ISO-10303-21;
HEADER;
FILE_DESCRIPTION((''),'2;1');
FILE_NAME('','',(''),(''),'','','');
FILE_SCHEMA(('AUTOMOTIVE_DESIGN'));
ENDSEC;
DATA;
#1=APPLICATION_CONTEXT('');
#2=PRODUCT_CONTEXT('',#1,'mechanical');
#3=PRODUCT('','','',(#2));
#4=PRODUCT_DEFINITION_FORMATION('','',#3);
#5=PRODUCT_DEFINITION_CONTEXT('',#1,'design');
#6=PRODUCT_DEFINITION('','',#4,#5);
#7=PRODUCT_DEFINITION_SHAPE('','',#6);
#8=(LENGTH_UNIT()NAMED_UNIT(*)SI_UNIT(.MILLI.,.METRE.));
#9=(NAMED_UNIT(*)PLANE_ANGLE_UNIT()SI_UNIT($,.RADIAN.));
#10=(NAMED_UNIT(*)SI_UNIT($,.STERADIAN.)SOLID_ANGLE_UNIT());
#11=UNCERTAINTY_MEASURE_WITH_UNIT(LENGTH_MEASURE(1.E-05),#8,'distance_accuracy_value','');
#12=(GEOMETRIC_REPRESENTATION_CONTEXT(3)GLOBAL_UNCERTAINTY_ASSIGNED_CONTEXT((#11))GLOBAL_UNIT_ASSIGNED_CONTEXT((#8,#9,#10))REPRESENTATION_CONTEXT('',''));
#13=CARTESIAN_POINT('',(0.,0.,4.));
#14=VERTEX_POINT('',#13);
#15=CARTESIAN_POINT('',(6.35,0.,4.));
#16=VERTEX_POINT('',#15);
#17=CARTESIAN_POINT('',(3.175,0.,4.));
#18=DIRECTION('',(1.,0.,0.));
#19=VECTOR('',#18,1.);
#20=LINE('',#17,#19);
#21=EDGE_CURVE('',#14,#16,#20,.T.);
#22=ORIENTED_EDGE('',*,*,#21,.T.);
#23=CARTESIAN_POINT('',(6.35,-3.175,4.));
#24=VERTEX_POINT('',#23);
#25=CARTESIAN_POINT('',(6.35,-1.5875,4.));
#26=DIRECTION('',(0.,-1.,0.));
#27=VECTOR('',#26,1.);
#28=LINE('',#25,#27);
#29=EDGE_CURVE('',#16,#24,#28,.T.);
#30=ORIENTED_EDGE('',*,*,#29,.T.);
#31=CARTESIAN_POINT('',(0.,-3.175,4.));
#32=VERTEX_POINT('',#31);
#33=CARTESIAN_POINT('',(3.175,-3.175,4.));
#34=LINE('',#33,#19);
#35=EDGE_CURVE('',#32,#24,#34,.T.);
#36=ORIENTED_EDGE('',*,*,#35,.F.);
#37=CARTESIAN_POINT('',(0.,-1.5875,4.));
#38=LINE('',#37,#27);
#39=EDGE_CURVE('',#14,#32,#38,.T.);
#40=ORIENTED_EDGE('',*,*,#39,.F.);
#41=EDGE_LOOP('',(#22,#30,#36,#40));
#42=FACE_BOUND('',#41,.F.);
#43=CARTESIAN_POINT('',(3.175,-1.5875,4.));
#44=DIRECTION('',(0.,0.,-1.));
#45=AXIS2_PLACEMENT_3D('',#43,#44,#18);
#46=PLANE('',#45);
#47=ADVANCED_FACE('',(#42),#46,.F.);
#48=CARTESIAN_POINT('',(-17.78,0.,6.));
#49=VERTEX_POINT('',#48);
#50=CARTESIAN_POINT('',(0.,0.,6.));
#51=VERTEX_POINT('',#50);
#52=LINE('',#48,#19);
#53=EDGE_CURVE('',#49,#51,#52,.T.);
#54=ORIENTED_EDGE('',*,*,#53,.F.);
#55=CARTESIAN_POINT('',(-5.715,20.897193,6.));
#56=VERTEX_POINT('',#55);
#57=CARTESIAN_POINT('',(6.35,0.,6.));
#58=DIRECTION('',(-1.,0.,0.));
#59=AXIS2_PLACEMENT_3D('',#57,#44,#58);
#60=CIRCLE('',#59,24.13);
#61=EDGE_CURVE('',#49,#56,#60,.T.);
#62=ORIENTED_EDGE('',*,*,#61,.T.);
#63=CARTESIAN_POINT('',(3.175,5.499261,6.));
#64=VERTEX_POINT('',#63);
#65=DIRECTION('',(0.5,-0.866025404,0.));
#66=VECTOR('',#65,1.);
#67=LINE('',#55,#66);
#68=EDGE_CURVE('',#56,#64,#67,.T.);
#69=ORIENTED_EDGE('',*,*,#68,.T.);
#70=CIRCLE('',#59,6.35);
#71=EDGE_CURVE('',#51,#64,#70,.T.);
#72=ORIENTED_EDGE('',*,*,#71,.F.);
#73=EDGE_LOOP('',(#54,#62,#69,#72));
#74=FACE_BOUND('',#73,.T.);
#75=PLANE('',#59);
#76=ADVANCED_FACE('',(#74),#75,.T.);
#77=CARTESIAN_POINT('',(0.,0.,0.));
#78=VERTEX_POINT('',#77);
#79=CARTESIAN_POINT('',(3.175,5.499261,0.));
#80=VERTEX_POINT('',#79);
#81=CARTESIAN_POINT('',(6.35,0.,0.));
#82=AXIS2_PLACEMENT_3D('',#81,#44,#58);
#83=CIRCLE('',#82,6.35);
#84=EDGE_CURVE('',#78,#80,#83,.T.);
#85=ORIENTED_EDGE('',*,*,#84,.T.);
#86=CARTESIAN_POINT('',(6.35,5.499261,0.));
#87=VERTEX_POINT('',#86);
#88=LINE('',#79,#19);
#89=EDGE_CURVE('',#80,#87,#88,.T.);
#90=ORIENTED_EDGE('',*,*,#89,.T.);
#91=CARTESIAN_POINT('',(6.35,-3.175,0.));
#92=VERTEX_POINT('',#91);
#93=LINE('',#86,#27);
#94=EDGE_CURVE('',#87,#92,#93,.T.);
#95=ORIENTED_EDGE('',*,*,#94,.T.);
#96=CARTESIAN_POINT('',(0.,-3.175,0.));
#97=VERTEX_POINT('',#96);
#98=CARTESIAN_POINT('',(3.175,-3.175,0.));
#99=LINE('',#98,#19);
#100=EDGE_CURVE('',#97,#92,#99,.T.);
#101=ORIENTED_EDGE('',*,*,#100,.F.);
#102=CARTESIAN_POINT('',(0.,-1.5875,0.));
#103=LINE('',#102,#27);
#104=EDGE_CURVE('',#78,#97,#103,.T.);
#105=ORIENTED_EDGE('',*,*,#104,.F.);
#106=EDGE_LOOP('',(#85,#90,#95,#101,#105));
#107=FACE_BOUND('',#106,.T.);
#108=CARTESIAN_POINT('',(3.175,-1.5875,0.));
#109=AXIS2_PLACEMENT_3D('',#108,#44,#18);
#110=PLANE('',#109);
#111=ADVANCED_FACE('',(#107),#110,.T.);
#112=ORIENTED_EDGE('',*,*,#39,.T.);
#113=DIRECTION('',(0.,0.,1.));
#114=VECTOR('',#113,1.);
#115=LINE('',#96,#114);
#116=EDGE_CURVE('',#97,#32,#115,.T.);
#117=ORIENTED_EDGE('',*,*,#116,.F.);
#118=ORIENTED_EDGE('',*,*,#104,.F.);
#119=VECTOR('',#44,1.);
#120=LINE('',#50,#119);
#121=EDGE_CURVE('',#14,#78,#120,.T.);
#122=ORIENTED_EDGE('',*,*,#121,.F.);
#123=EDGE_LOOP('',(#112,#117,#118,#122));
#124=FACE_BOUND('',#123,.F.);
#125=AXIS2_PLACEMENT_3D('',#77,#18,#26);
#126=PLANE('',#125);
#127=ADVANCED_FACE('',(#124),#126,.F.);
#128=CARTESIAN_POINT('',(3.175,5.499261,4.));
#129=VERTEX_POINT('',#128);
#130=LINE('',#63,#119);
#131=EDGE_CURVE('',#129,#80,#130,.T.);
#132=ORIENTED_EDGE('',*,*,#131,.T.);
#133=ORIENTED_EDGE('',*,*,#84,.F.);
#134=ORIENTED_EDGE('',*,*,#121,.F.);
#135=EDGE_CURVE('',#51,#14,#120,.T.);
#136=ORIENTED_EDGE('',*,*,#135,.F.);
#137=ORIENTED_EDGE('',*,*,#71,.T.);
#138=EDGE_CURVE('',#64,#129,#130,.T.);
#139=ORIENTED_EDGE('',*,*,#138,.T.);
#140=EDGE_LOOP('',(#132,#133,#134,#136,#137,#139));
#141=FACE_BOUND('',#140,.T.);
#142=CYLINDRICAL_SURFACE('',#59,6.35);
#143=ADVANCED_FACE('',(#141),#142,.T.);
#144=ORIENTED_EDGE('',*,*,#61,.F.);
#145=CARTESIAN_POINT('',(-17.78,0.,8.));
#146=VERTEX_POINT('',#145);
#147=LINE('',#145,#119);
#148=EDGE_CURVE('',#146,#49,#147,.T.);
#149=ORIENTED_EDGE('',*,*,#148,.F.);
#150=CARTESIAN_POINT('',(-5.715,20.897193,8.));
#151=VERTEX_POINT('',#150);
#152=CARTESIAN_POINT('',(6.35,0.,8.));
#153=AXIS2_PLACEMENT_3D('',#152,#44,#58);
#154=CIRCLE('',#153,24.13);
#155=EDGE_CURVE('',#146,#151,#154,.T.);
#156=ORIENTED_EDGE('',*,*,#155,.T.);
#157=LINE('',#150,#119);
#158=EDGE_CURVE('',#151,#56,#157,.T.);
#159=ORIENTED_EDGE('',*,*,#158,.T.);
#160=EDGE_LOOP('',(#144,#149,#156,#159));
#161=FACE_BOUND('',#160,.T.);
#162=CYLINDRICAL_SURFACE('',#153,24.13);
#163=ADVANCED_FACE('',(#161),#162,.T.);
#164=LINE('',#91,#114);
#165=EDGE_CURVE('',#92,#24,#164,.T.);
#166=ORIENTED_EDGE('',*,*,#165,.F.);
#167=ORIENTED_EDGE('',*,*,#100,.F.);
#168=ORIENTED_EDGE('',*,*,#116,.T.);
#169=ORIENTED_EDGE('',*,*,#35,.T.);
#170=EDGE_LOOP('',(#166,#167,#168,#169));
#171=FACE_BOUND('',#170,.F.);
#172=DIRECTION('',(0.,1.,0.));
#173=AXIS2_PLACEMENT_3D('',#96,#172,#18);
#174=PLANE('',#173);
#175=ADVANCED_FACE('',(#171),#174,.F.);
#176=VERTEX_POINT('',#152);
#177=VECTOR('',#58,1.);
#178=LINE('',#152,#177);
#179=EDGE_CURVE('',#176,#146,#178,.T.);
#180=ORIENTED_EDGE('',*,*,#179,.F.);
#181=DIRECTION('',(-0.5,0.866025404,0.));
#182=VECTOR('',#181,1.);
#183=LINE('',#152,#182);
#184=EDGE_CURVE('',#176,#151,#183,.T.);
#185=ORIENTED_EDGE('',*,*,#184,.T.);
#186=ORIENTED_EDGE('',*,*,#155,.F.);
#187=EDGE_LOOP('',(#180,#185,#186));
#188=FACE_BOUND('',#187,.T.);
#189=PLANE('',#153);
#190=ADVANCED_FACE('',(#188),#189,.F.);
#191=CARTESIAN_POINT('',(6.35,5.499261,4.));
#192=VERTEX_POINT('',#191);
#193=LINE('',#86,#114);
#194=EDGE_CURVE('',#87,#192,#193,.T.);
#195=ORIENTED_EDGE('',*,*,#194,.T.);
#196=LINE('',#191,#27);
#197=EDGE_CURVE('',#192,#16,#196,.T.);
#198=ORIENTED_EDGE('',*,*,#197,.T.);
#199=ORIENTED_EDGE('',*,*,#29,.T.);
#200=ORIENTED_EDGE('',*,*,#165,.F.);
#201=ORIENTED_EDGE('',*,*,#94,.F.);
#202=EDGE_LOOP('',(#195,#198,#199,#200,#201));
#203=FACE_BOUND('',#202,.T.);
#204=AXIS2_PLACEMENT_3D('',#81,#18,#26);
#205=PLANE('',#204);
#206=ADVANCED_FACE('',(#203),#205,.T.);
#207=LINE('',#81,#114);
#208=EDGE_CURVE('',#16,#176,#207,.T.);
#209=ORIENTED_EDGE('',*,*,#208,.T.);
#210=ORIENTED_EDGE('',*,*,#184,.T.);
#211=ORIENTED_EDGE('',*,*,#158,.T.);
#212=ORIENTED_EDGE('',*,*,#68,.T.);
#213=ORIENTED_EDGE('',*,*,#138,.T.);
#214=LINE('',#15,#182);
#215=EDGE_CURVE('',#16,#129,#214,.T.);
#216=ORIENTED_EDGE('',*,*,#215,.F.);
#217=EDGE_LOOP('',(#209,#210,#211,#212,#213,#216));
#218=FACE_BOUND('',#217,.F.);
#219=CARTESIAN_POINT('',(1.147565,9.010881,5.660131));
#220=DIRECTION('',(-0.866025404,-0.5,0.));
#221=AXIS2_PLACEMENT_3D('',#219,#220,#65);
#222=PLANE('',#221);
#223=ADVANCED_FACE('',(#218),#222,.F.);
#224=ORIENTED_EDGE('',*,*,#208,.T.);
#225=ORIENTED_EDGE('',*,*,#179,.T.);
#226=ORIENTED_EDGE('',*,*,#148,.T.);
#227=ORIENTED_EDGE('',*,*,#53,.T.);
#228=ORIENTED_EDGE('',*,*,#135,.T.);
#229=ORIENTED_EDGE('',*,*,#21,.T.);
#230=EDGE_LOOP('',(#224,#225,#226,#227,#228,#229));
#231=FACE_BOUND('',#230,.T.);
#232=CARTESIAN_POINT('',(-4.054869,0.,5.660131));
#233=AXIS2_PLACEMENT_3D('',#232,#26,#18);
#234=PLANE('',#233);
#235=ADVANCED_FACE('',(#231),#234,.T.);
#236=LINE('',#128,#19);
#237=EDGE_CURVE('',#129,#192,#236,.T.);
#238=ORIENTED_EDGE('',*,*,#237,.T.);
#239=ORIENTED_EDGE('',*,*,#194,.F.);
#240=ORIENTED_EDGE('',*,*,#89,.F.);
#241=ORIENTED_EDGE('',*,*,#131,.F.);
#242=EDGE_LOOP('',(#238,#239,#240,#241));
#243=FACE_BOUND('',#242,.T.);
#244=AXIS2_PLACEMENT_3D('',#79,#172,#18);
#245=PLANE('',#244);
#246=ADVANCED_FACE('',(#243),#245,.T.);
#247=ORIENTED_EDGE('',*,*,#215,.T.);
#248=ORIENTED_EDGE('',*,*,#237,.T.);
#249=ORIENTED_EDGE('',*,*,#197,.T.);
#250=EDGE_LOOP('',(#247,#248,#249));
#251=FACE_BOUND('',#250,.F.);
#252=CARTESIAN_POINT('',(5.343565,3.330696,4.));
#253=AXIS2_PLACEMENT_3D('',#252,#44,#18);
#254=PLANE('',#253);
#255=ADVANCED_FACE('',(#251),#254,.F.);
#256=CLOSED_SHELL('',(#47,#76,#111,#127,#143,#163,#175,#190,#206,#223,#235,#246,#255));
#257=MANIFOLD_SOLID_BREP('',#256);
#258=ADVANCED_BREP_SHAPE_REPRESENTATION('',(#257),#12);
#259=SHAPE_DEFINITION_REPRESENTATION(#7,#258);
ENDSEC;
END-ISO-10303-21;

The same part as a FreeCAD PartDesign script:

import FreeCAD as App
import Part
import Sketcher
from FreeCAD import Vector
Q = App.Units.Quantity

doc = App.newDocument("Part")
body = doc.addObject("PartDesign::Body", "Body")

# Sketch on XZ plane
sketch1 = doc.addObject("Sketcher::SketchObject", "Sketch")
body.addObject(sketch1)
sketch1.AttachmentSupport = (doc.XZ_Plane, [""])
sketch1.MapMode = "FlatFace"
sketch1.addGeometry([
    Part.LineSegment(Vector(0, 6, 0), Vector(0, 0, 0)),  # 0
    Part.LineSegment(Vector(0, 0, 0), Vector(6.3, 0, 0)),  # 1
    Part.LineSegment(Vector(6.3, 0, 0), Vector(6.3, 8, 0)),  # 2
    Part.LineSegment(Vector(6.3, 8, 0), Vector(-17.8, 8, 0)),  # 3
    Part.LineSegment(Vector(-17.8, 8, 0), Vector(-17.8, 6, 0)),  # 4
    Part.LineSegment(Vector(-17.8, 6, 0), Vector(0, 6, 0)),  # 5
], False)
sketch1.addGeometry(Part.LineSegment(Vector(6.3, 8, 0), Vector(6.3, 0, 0)), True)  # axis
sketch1.addConstraint([
    Sketcher.Constraint("Coincident", 0, 2, 1, 1),
    Sketcher.Constraint("Coincident", 1, 2, 2, 1),
    Sketcher.Constraint("Coincident", 2, 2, 3, 1),
    Sketcher.Constraint("Coincident", 3, 2, 4, 1),
    Sketcher.Constraint("Coincident", 4, 2, 5, 1),
    Sketcher.Constraint("Coincident", 5, 2, 0, 1),
    Sketcher.Constraint("Vertical", 0),
    Sketcher.Constraint("Horizontal", 1),
    Sketcher.Constraint("Vertical", 2),
    Sketcher.Constraint("Horizontal", 3),
    Sketcher.Constraint("Vertical", 4),
    Sketcher.Constraint("Horizontal", 5),
    Sketcher.Constraint("Vertical", 6),
    Sketcher.Constraint("Coincident", 0, 2, -1, 1),
    Sketcher.Constraint("Coincident", 6, 1, 2, 2),
    Sketcher.Constraint("PointOnObject", 6, 2, -1),
    Sketcher.Constraint("DistanceY", 0, 2, 0, 1, 6.0),
    Sketcher.Constraint("DistanceY", 2, 1, 2, 2, 8.0),
    Sketcher.Constraint("DistanceX", 1, 1, 1, 2, 6.35),
    Sketcher.Constraint("DistanceX", 3, 2, 3, 1, 24.13),
])
revolution = doc.addObject("PartDesign::Revolution", "Revolution")
body.addObject(revolution)
revolution.Profile = sketch1
revolution.ReferenceAxis = (sketch1, ["Axis0"])
revolution.Angle = 60

# Sketch on XY plane
sketch2 = doc.addObject("Sketcher::SketchObject", "Sketch001")
body.addObject(sketch2)
sketch2.AttachmentSupport = (doc.XY_Plane, [""])
sketch2.MapMode = "FlatFace"
sketch2.addGeometry([
    Part.LineSegment(Vector(0, -3.2, 0), Vector(0, 0, 0)),  # 0
    Part.LineSegment(Vector(0, 0, 0), Vector(6.3, 0, 0)),  # 1
    Part.LineSegment(Vector(6.3, 0, 0), Vector(6.3, -3.2, 0)),  # 2
    Part.LineSegment(Vector(6.3, -3.2, 0), Vector(0, -3.2, 0)),  # 3
    Part.LineSegment(Vector(6.3, 0, 0), Vector(3.2, 5.5, 0)),  # 4
    Part.LineSegment(Vector(3.2, 5.5, 0), Vector(6.3, 5.5, 0)),  # 5
    Part.LineSegment(Vector(6.3, 5.5, 0), Vector(6.3, 0, 0)),  # 6
], False)
sketch2.addConstraint([
    Sketcher.Constraint("Coincident", 0, 2, 1, 1),
    Sketcher.Constraint("Coincident", 1, 2, 2, 1),
    Sketcher.Constraint("Coincident", 2, 2, 3, 1),
    Sketcher.Constraint("Coincident", 3, 2, 0, 1),
    Sketcher.Constraint("Coincident", 4, 2, 5, 1),
    Sketcher.Constraint("Coincident", 5, 2, 6, 1),
    Sketcher.Constraint("Coincident", 6, 2, 4, 1),
    Sketcher.Constraint("Vertical", 0),
    Sketcher.Constraint("Horizontal", 1),
    Sketcher.Constraint("Vertical", 2),
    Sketcher.Constraint("Horizontal", 3),
    Sketcher.Constraint("Horizontal", 5),
    Sketcher.Constraint("Vertical", 6),
    Sketcher.Constraint("Coincident", 0, 2, -1, 1),
    Sketcher.Constraint("Coincident", 6, 2, 1, 2),
    Sketcher.Constraint("Equal", 5, 0),
    Sketcher.Constraint("Angle", 4, Q("120 deg")),
    Sketcher.Constraint("DistanceX", 1, 1, 1, 2, 6.35),
    Sketcher.Constraint("Distance", 4, 6.35),
])
pad1 = doc.addObject("PartDesign::Pad", "Pad")
body.addObject(pad1)
pad1.Profile = sketch2
pad1.Length = 4

doc.recompute()
